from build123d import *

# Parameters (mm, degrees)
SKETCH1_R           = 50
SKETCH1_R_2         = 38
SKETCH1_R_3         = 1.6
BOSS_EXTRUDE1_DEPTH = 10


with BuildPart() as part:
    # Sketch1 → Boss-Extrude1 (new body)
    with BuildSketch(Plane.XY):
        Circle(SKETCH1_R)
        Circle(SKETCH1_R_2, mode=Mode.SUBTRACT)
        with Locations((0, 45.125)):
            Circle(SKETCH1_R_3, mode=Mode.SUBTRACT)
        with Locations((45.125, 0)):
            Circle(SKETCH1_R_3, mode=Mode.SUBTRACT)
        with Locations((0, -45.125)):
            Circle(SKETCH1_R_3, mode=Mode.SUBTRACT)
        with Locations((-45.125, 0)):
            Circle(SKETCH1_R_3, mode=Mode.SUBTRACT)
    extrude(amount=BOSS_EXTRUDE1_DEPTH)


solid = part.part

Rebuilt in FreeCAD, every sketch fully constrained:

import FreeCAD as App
import Part
import Sketcher

doc = App.newDocument("Part")
body = doc.addObject("PartDesign::Body", "Body")

# Sketch on XY plane
sketch1 = body.newObject("Sketcher::SketchObject", "Sketch")
sketch1.AttachmentSupport = (doc.getObject("XY_Plane"), [""])
sketch1.MapMode = "FlatFace"
sketch1.addGeometry([
    Part.Circle(App.Vector(0, 0, 0), App.Vector(0, 0, 1), 50),  # 0
    Part.Circle(App.Vector(0, -45.125, 0), App.Vector(0, 0, 1), 1.6),  # 1
    Part.Circle(App.Vector(-45.125, 0, 0), App.Vector(0, 0, 1), 1.6),  # 2
    Part.Circle(App.Vector(0, 0, 0), App.Vector(0, 0, 1), 38),  # 3
    Part.Circle(App.Vector(45.125, 0, 0), App.Vector(0, 0, 1), 1.6),  # 4
    Part.Circle(App.Vector(0, 45.125, 0), App.Vector(0, 0, 1), 1.6),  # 5
], False)
sketch1.addConstraint([
    Sketcher.Constraint("Coincident", 0, 3, -1, 1),
    Sketcher.Constraint("Coincident", 3, 3, -1, 1),
    Sketcher.Constraint("Equal", 1, 2),
    Sketcher.Constraint("Equal", 2, 4),
    Sketcher.Constraint("Equal", 4, 5),
    Sketcher.Constraint("Symmetric", 2, 3, 4, 3, -1, 1),
    Sketcher.Constraint("Symmetric", 1, 3, 5, 3, -1, 1),
    Sketcher.Constraint("PointOnObject", 1, 3, -2),
    Sketcher.Constraint("PointOnObject", 2, 3, -1),
    Sketcher.Constraint("Diameter", 0, 100.0),
    Sketcher.Constraint("Diameter", 3, 76.0),
    Sketcher.Constraint("Diameter", 1, 3.2),
    Sketcher.Constraint("DistanceX", 2, 3, 4, 3, 90.25),
    Sketcher.Constraint("DistanceY", 1, 3, 5, 3, 90.25),
])
pad1 = body.newObject("PartDesign::Pad", "Pad")
pad1.Profile = sketch1
pad1.Length = 10

doc.recompute()
